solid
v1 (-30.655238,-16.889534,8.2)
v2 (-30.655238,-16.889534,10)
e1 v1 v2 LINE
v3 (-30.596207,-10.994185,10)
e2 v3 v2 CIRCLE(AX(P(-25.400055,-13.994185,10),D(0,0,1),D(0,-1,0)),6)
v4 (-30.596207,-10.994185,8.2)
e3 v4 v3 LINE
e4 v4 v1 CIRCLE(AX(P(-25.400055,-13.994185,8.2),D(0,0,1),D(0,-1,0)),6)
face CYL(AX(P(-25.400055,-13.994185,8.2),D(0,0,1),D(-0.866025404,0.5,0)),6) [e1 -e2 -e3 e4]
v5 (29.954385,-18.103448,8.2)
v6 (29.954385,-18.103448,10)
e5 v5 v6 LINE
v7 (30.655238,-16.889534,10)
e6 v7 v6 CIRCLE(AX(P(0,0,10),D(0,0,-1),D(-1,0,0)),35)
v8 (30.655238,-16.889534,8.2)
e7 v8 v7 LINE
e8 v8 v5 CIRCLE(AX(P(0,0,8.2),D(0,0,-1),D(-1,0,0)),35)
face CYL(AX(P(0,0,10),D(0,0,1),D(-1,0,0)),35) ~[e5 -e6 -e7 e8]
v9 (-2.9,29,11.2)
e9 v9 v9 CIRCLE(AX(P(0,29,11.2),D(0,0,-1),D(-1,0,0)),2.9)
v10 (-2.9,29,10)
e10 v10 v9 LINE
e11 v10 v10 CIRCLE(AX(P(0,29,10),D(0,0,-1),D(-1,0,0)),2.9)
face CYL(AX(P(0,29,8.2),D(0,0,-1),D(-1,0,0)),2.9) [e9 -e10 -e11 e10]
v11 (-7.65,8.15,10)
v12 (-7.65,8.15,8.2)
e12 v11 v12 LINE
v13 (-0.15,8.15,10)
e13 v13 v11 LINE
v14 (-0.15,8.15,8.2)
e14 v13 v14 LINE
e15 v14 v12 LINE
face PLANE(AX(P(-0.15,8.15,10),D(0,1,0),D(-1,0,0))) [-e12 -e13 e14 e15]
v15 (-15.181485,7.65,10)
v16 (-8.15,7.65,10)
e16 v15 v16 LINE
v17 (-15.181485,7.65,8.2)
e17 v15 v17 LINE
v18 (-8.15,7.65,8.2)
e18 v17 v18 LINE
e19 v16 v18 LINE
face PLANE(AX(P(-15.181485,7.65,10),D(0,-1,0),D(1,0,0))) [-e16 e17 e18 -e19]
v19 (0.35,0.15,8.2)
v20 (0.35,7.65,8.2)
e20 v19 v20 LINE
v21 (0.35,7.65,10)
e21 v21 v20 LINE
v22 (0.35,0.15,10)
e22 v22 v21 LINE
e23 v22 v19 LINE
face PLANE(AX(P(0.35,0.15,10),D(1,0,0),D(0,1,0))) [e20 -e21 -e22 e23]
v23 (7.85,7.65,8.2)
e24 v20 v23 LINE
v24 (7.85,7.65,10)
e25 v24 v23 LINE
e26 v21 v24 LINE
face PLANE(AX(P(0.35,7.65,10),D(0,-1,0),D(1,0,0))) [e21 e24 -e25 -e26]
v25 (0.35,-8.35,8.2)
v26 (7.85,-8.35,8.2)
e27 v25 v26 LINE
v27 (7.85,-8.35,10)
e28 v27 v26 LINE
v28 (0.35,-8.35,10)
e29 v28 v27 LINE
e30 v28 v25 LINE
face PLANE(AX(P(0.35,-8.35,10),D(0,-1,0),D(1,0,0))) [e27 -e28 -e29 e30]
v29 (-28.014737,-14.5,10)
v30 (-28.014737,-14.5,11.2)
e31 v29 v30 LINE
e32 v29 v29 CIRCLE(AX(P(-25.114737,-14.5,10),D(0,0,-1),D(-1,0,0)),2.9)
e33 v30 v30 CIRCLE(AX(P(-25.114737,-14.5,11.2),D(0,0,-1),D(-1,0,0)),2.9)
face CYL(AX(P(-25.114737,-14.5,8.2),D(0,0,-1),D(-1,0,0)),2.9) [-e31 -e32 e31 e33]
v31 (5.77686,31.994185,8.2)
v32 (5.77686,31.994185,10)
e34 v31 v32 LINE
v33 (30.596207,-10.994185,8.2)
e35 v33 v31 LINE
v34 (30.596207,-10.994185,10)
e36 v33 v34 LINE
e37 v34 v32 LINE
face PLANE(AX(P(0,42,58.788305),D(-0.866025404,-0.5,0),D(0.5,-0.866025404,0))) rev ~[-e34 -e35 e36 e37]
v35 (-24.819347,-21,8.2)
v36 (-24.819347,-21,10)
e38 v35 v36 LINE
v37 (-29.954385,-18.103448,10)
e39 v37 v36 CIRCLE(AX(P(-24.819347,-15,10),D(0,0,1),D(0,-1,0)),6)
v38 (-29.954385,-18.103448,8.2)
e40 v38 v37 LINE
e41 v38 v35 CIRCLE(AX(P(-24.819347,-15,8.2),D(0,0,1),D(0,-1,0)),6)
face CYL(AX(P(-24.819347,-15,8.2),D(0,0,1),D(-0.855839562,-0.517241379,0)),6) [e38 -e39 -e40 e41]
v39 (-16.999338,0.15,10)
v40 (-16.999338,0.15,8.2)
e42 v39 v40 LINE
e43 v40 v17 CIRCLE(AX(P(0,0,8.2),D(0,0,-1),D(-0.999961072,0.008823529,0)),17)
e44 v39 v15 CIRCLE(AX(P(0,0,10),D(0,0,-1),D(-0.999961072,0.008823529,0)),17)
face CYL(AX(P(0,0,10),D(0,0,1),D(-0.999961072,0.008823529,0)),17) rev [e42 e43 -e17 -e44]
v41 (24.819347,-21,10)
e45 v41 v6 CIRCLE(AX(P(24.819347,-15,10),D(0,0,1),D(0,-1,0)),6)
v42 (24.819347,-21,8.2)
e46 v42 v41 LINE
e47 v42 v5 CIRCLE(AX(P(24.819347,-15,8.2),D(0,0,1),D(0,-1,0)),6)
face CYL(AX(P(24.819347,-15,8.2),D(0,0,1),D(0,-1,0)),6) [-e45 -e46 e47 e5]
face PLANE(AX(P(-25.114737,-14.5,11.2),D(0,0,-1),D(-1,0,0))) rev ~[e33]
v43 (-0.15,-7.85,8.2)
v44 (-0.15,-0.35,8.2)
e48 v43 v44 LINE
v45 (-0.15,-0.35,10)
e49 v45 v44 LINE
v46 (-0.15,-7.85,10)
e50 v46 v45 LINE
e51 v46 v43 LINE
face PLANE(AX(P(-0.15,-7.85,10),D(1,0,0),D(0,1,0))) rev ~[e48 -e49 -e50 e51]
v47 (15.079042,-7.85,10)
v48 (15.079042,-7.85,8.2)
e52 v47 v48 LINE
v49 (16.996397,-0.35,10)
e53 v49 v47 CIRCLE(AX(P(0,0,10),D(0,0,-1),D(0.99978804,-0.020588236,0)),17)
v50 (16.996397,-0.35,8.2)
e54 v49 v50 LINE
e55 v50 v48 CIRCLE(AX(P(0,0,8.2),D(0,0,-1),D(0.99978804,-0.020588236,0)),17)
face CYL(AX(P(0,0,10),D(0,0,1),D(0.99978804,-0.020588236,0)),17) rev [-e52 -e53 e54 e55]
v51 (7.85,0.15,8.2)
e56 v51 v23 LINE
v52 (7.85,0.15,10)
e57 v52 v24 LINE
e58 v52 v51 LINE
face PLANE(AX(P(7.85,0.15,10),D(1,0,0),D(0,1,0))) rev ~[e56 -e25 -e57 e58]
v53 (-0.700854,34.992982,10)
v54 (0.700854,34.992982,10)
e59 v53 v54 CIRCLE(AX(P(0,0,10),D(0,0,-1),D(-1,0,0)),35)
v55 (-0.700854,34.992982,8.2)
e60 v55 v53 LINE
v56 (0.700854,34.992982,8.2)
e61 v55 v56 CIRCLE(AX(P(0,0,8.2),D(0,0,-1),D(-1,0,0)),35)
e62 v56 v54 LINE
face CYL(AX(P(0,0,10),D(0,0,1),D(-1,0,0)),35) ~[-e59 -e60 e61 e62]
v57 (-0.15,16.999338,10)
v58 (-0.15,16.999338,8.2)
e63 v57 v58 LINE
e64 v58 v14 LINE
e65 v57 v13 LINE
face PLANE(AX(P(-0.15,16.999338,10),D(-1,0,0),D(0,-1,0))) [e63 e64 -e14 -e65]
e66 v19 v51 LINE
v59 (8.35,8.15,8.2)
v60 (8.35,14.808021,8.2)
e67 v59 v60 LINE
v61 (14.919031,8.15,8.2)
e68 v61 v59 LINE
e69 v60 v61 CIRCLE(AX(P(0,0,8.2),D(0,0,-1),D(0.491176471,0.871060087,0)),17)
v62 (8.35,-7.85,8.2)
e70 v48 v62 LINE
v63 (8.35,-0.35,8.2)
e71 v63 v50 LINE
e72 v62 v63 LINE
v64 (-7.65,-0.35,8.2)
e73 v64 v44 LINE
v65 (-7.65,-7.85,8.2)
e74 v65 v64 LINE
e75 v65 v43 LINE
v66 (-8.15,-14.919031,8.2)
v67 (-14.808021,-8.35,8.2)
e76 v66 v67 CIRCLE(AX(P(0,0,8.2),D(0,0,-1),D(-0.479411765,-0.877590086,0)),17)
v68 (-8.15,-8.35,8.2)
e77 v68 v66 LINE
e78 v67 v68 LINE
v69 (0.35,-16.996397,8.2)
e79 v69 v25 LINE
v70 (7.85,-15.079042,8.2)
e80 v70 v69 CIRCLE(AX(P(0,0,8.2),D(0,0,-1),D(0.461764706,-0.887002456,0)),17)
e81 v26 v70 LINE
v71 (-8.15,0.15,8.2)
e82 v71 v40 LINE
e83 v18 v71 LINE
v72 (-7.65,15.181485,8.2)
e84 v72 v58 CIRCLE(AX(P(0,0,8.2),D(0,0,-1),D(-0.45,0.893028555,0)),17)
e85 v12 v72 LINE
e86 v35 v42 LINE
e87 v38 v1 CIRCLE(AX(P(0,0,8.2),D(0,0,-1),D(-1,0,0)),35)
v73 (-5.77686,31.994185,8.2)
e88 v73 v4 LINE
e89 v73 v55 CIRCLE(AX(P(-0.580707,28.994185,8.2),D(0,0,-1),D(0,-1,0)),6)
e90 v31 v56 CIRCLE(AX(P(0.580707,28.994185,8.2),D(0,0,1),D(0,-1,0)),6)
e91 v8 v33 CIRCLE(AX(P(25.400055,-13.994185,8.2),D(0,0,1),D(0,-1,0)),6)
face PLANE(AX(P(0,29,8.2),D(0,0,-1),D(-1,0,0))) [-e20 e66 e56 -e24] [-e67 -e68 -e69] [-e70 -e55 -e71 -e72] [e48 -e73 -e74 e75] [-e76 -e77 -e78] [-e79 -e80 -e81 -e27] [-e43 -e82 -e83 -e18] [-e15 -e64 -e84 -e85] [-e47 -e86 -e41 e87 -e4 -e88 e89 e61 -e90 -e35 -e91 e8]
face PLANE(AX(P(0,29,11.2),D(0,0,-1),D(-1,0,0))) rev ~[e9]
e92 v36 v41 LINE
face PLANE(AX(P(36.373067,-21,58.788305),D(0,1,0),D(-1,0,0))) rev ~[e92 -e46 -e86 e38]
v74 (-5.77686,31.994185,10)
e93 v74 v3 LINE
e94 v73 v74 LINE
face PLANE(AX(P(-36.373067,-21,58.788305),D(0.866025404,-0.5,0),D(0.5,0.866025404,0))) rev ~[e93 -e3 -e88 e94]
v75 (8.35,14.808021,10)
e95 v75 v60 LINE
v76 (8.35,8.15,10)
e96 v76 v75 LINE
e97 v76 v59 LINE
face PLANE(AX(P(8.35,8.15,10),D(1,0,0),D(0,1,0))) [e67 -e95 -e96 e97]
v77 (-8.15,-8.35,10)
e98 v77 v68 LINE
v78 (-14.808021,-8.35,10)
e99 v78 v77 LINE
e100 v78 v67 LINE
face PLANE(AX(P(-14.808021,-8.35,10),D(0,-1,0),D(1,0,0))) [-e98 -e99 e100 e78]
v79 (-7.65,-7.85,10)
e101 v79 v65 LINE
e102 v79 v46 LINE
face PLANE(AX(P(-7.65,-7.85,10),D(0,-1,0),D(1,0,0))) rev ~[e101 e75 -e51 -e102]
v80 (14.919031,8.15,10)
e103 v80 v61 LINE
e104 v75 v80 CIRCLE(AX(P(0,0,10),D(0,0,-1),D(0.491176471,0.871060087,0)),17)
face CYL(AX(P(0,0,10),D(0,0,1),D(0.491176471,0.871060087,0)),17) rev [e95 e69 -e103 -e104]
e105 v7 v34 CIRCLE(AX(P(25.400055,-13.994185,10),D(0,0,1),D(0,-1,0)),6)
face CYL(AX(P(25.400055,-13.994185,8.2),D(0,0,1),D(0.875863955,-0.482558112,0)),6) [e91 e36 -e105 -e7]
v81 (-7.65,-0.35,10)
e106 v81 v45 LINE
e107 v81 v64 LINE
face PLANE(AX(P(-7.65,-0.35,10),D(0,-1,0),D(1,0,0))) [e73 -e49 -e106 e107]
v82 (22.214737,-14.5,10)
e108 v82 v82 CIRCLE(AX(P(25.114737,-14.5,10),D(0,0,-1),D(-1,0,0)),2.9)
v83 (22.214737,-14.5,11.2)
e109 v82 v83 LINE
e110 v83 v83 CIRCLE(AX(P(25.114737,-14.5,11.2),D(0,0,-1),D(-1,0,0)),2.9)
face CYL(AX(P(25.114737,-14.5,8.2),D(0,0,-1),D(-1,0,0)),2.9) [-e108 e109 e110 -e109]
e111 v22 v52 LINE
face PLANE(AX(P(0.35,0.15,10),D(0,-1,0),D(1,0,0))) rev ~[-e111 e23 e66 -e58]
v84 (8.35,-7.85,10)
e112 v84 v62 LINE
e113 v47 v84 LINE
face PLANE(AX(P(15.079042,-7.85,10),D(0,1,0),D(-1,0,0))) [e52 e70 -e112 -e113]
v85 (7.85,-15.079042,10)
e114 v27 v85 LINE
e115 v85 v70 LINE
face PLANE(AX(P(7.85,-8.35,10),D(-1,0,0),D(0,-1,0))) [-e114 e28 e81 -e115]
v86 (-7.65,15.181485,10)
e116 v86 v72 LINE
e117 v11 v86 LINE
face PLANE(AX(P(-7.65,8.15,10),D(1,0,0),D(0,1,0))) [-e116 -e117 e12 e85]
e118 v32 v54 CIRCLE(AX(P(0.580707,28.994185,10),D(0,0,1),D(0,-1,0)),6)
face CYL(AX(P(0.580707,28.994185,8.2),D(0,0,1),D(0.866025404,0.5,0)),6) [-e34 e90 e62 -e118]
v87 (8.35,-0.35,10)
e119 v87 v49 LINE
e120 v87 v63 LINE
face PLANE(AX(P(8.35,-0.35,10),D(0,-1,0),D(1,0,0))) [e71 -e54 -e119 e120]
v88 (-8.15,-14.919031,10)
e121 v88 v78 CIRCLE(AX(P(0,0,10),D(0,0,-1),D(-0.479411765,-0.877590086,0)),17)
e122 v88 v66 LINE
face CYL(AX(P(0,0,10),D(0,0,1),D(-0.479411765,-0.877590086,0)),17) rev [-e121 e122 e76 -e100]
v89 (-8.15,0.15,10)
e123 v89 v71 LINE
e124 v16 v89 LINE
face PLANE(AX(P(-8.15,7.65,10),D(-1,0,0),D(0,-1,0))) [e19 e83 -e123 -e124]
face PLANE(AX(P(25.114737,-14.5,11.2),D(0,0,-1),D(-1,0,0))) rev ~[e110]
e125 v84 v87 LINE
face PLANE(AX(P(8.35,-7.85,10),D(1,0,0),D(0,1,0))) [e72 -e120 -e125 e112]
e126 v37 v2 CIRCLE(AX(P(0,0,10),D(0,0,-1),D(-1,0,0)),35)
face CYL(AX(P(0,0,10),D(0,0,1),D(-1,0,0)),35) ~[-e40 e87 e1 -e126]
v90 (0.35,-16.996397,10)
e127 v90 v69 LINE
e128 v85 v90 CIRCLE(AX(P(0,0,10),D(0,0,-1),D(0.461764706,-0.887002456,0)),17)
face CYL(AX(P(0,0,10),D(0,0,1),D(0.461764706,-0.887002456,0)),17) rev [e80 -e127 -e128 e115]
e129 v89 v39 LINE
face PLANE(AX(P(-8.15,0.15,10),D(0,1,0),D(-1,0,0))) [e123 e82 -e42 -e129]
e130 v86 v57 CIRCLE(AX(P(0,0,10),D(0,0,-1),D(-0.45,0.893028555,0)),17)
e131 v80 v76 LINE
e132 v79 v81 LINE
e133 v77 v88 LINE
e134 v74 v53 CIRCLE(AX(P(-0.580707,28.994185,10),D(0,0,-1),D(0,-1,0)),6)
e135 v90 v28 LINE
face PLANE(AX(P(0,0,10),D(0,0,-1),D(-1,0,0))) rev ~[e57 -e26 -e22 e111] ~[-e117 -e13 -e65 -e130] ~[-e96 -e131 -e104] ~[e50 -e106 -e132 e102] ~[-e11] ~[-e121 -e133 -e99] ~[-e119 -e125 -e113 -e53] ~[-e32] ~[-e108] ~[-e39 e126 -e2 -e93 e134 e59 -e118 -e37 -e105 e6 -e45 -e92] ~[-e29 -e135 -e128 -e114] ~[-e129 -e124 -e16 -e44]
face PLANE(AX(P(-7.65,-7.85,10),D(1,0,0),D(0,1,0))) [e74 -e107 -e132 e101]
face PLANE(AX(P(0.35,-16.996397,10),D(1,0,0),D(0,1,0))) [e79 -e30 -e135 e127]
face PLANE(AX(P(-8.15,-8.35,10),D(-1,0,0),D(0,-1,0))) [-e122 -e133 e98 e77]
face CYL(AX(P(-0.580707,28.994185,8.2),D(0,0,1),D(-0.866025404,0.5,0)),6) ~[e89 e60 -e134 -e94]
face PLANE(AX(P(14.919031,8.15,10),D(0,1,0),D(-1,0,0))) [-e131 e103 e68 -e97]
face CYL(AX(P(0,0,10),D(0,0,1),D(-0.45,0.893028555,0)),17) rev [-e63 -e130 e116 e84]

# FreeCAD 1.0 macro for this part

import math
import FreeCAD as App
import Part
import Sketcher
Q = App.Units.Quantity


def edges_at(feature, points):
    """Names of the edges that pass closest to the given points."""
    edges = feature.Shape.Edges
    near = lambda p: min(range(len(edges)), key=lambda i: edges[i].distToShape(Part.Vertex(*p))[0])
    return sorted({f"Edge{near(p) + 1}" for p in points})


def add_polygon(sketch, points):
    """Adds a closed chain of lines whose ends are joined by coincident constraints."""
    first, n = sketch.GeometryCount, len(points)
    for a, b in zip(points, points[1:] + points[:1]):
        sketch.addGeometry(Part.LineSegment(App.Vector(*a, 0), App.Vector(*b, 0)), False)
    for i in range(n):
        sketch.addConstraint(Sketcher.Constraint("Coincident", first + i, 2, first + (i + 1) % n, 1))

doc = App.newDocument("Part")
body = doc.addObject("PartDesign::Body", "Body")

# Sketch on XY plane
sketch1 = body.newObject("Sketcher::SketchObject", "Sketch")
sketch1.AttachmentSupport = (doc.getObject("XY_Plane"), [""])
sketch1.MapMode = "FlatFace"
sketch1.AttachmentOffset = App.Placement(App.Vector(0, 0, 10), App.Rotation())
sketch1.addGeometry(Part.Circle(App.Vector(0, 0, 0), App.Vector(0, 0, 1), 18), False)  # 0
sketch1.addGeometry(Part.LineSegment(App.Vector(-15, -8, 0), App.Vector(-8, -8, 0)), False)  # 1
sketch1.addGeometry(Part.LineSegment(App.Vector(-8, -8, 0), App.Vector(-8, -15, 0)), False)  # 2
sketch1.addGeometry(Part.ArcOfCircle(Part.Circle(App.Vector(0, 0, 0), App.Vector(0, 0, 1), 17), math.radians(-151), math.radians(-119)), False)  # 3
sketch1.addGeometry(Part.LineSegment(App.Vector(-8, -8, 0), App.Vector(0, -8, 0)), False)  # 4
sketch1.addGeometry(Part.LineSegment(App.Vector(0, -8, 0), App.Vector(0, -17, 0)), False)  # 5
sketch1.addGeometry(Part.ArcOfCircle(Part.Circle(App.Vector(0, 0, 0), App.Vector(0, 0, 1), 17), math.radians(-117), math.radians(-91)), False)  # 6
sketch1.addGeometry(Part.LineSegment(App.Vector(-8, -15, 0), App.Vector(-8, -8, 0)), False)  # 7
sketch1.addGeometry(Part.LineSegment(App.Vector(-8, 0, 0), App.Vector(-8, -8, 0)), False)  # 8
sketch1.addGeometry(Part.LineSegment(App.Vector(-8, -8, 0), App.Vector(-15, -8, 0)), False)  # 9
sketch1.addGeometry(Part.ArcOfCircle(Part.Circle(App.Vector(0, 0, 0), App.Vector(0, 0, 1), 17), math.radians(-179), math.radians(-152)), False)  # 10
sketch1.addGeometry(Part.LineSegment(App.Vector(-17, 0, 0), App.Vector(-8, 0, 0)), False)  # 11
add_polygon(sketch1, [(0, -8), (-8, -8), (-8, 0), (0, 0)])  # lines 12-15
sketch1.addGeometry(Part.LineSegment(App.Vector(0, -8, 0), App.Vector(8, -8, 0)), False)  # 16
sketch1.addGeometry(Part.LineSegment(App.Vector(8, -8, 0), App.Vector(8, -15, 0)), False)  # 17
sketch1.addGeometry(Part.ArcOfCircle(Part.Circle(App.Vector(0, 0, 0), App.Vector(0, 0, 1), 17), math.radians(-89), math.radians(-62)), False)  # 18
sketch1.addGeometry(Part.LineSegment(App.Vector(0, -17, 0), App.Vector(0, -8, 0)), False)  # 19
sketch1.addGeometry(Part.LineSegment(App.Vector(8, -15, 0), App.Vector(8, -8, 0)), False)  # 20
sketch1.addGeometry(Part.LineSegment(App.Vector(8, -8, 0), App.Vector(15, -8, 0)), False)  # 21
sketch1.addGeometry(Part.ArcOfCircle(Part.Circle(App.Vector(0, 0, 0), App.Vector(0, 0, 1), 17), math.radians(-61), math.radians(-29)), False)  # 22
add_polygon(sketch1, [(8, -8), (0, -8), (0, 0), (8, 0)])  # lines 23-26
sketch1.addGeometry(Part.LineSegment(App.Vector(8, -8, 0), App.Vector(8, 0, 0)), False)  # 27
sketch1.addGeometry(Part.LineSegment(App.Vector(8, 0, 0), App.Vector(17, 0, 0)), False)  # 28
sketch1.addGeometry(Part.ArcOfCircle(Part.Circle(App.Vector(0, 0, 0), App.Vector(0, 0, 1), 17), math.radians(-28), math.radians(-1)), False)  # 29
sketch1.addGeometry(Part.LineSegment(App.Vector(15, -8, 0), App.Vector(8, -8, 0)), False)  # 30
sketch1.addGeometry(Part.LineSegment(App.Vector(-8, 8, 0), App.Vector(-8, 0, 0)), False)  # 31
sketch1.addGeometry(Part.LineSegment(App.Vector(-8, 0, 0), App.Vector(-17, 0, 0)), False)  # 32
sketch1.addGeometry(Part.ArcOfCircle(Part.Circle(App.Vector(0, 0, 0), App.Vector(0, 0, 1), 17), math.radians(153), math.radians(179)), False)  # 33
sketch1.addGeometry(Part.LineSegment(App.Vector(-15, 8, 0), App.Vector(-8, 8, 0)), False)  # 34
add_polygon(sketch1, [(0, 0), (-8, 0), (-8, 8), (0, 8)])  # lines 35-38
sketch1.addGeometry(Part.LineSegment(App.Vector(-8, 15, 0), App.Vector(-8, 8, 0)), False)  # 39
sketch1.addGeometry(Part.LineSegment(App.Vector(-8, 8, 0), App.Vector(-15, 8, 0)), False)  # 40
sketch1.addGeometry(Part.ArcOfCircle(Part.Circle(App.Vector(0, 0, 0), App.Vector(0, 0, 1), 17), math.radians(119), math.radians(151)), False)  # 41
sketch1.addGeometry(Part.LineSegment(App.Vector(0, 8, 0), App.Vector(-8, 8, 0)), False)  # 42
sketch1.addGeometry(Part.LineSegment(App.Vector(-8, 8, 0), App.Vector(-8, 15, 0)), False)  # 43
sketch1.addGeometry(Part.ArcOfCircle(Part.Circle(App.Vector(0, 0, 0), App.Vector(0, 0, 1), 17), math.radians(91), math.radians(117)), False)  # 44
sketch1.addGeometry(Part.LineSegment(App.Vector(0, 17, 0), App.Vector(0, 8, 0)), False)  # 45
add_polygon(sketch1, [(8, 0), (0, 0), (0, 8), (8, 8)])  # lines 46-49
sketch1.addGeometry(Part.LineSegment(App.Vector(8, 0, 0), App.Vector(8, 8, 0)), False)  # 50
sketch1.addGeometry(Part.LineSegment(App.Vector(8, 8, 0), App.Vector(15, 8, 0)), False)  # 51
sketch1.addGeometry(Part.ArcOfCircle(Part.Circle(App.Vector(0, 0, 0), App.Vector(0, 0, 1), 17), math.radians(1), math.radians(27)), False)  # 52
sketch1.addGeometry(Part.LineSegment(App.Vector(17, 0, 0), App.Vector(8, 0, 0)), False)  # 53
sketch1.addGeometry(Part.LineSegment(App.Vector(8, 8, 0), App.Vector(0, 8, 0)), False)  # 54
sketch1.addGeometry(Part.LineSegment(App.Vector(0, 8, 0), App.Vector(0, 17, 0)), False)  # 55
sketch1.addGeometry(Part.ArcOfCircle(Part.Circle(App.Vector(0, 0, 0), App.Vector(0, 0, 1), 17), math.radians(62), math.radians(89)), False)  # 56
sketch1.addGeometry(Part.LineSegment(App.Vector(8, 15, 0), App.Vector(8, 8, 0)), False)  # 57
sketch1.addGeometry(Part.LineSegment(App.Vector(15, 8, 0), App.Vector(8, 8, 0)), False)  # 58
sketch1.addGeometry(Part.LineSegment(App.Vector(8, 8, 0), App.Vector(8, 15, 0)), False)  # 59
sketch1.addGeometry(Part.ArcOfCircle(Part.Circle(App.Vector(0, 0, 0), App.Vector(0, 0, 1), 17), math.radians(29), math.radians(61)), False)  # 60
sketch1.addConstraint([
    Sketcher.Constraint("Coincident", 1, 2, 2, 1),
    Sketcher.Constraint("Coincident", 2, 2, 3, 2),
    Sketcher.Constraint("Coincident", 3, 1, 1, 1),
    Sketcher.Constraint("Coincident", 4, 2, 5, 1),
    Sketcher.Constraint("Coincident", 5, 2, 6, 2),
    Sketcher.Constraint("Coincident", 6, 1, 7, 1),
    Sketcher.Constraint("Coincident", 7, 2, 4, 1),
    Sketcher.Constraint("Coincident", 8, 2, 9, 1),
    Sketcher.Constraint("Coincident", 9, 2, 10, 2),
    Sketcher.Constraint("Coincident", 10, 1, 11, 1),
    Sketcher.Constraint("Coincident", 11, 2, 8, 1),
    Sketcher.Constraint("Coincident", 16, 2, 17, 1),
    Sketcher.Constraint("Coincident", 17, 2, 18, 2),
    Sketcher.Constraint("Coincident", 18, 1, 19, 1),
    Sketcher.Constraint("Coincident", 19, 2, 16, 1),
    Sketcher.Constraint("Coincident", 20, 2, 21, 1),
    Sketcher.Constraint("Coincident", 21, 2, 22, 2),
    Sketcher.Constraint("Coincident", 22, 1, 20, 1),
    Sketcher.Constraint("Coincident", 27, 2, 28, 1),
    Sketcher.Constraint("Coincident", 28, 2, 29, 2),
    Sketcher.Constraint("Coincident", 29, 1, 30, 1),
    Sketcher.Constraint("Coincident", 30, 2, 27, 1),
    Sketcher.Constraint("Coincident", 31, 2, 32, 1),
    Sketcher.Constraint("Coincident", 32, 2, 33, 2),
    Sketcher.Constraint("Coincident", 33, 1, 34, 1),
    Sketcher.Constraint("Coincident", 34, 2, 31, 1),
    Sketcher.Constraint("Coincident", 39, 2, 40, 1),
    Sketcher.Constraint("Coincident", 40, 2, 41, 2),
    Sketcher.Constraint("Coincident", 41, 1, 39, 1),
    Sketcher.Constraint("Coincident", 42, 2, 43, 1),
    Sketcher.Constraint("Coincident", 43, 2, 44, 2),
    Sketcher.Constraint("Coincident", 44, 1, 45, 1),
    Sketcher.Constraint("Coincident", 45, 2, 42, 1),
    Sketcher.Constraint("Coincident", 50, 2, 51, 1),
    Sketcher.Constraint("Coincident", 51, 2, 52, 2),
    Sketcher.Constraint("Coincident", 52, 1, 53, 1),
    Sketcher.Constraint("Coincident", 53, 2, 50, 1),
    Sketcher.Constraint("Coincident", 54, 2, 55, 1),
    Sketcher.Constraint("Coincident", 55, 2, 56, 2),
    Sketcher.Constraint("Coincident", 56, 1, 57, 1),
    Sketcher.Constraint("Coincident", 57, 2, 54, 1),
    Sketcher.Constraint("Coincident", 58, 2, 59, 1),
    Sketcher.Constraint("Coincident", 59, 2, 60, 2),
    Sketcher.Constraint("Coincident", 60, 1, 58, 1),
    Sketcher.Constraint("Horizontal", 1),
    Sketcher.Constraint("Vertical", 2),
    Sketcher.Constraint("Horizontal", 4),
    Sketcher.Constraint("Vertical", 5),
    Sketcher.Constraint("Vertical", 7),
    Sketcher.Constraint("Vertical", 8),
    Sketcher.Constraint("Horizontal", 9),
    Sketcher.Constraint("Horizontal", 11),
    Sketcher.Constraint("Horizontal", 12),
    Sketcher.Constraint("Vertical", 13),
    Sketcher.Constraint("Horizontal", 14),
    Sketcher.Constraint("Vertical", 15),
    Sketcher.Constraint("Horizontal", 16),
    Sketcher.Constraint("Vertical", 17),
    Sketcher.Constraint("Vertical", 19),
    Sketcher.Constraint("Vertical", 20),
    Sketcher.Constraint("Horizontal", 21),
    Sketcher.Constraint("Horizontal", 23),
    Sketcher.Constraint("Vertical", 24),
    Sketcher.Constraint("Horizontal", 25),
    Sketcher.Constraint("Vertical", 26),
    Sketcher.Constraint("Vertical", 27),
    Sketcher.Constraint("Horizontal", 28),
    Sketcher.Constraint("Horizontal", 30),
    Sketcher.Constraint("Vertical", 31),
    Sketcher.Constraint("Horizontal", 32),
    Sketcher.Constraint("Horizontal", 34),
    Sketcher.Constraint("Horizontal", 35),
    Sketcher.Constraint("Vertical", 36),
    Sketcher.Constraint("Horizontal", 37),
    Sketcher.Constraint("Vertical", 38),
    Sketcher.Constraint("Vertical", 39),
    Sketcher.Constraint("Horizontal", 40),
    Sketcher.Constraint("Horizontal", 42),
    Sketcher.Constraint("Vertical", 43),
    Sketcher.Constraint("Vertical", 45),
    Sketcher.Constraint("Horizontal", 46),
    Sketcher.Constraint("Vertical", 47),
    Sketcher.Constraint("Horizontal", 48),
    Sketcher.Constraint("Vertical", 49),
    Sketcher.Constraint("Vertical", 50),
    Sketcher.Constraint("Horizontal", 51),
    Sketcher.Constraint("Horizontal", 53),
    Sketcher.Constraint("Horizontal", 54),
    Sketcher.Constraint("Vertical", 55),
    Sketcher.Constraint("Vertical", 57),
    Sketcher.Constraint("Horizontal", 58),
    Sketcher.Constraint("Vertical", 59),
    Sketcher.Constraint("Coincident", 0, 3, -1, 1),
    Sketcher.Constraint("Coincident", 3, 3, -1, 1),
    Sketcher.Constraint("Coincident", 6, 3, -1, 1),
    Sketcher.Constraint("Coincident", 10, 3, -1, 1),
    Sketcher.Constraint("Coincident", 18, 3, -1, 1),
    Sketcher.Constraint("Coincident", 22, 3, -1, 1),
    Sketcher.Constraint("Coincident", 29, 3, -1, 1),
    Sketcher.Constraint("Coincident", 33, 3, -1, 1),
    Sketcher.Constraint("Coincident", 41, 3, -1, 1),
    Sketcher.Constraint("Coincident", 44, 3, -1, 1),
    Sketcher.Constraint("Coincident", 52, 3, -1, 1),
    Sketcher.Constraint("Coincident", 56, 3, -1, 1),
    Sketcher.Constraint("Coincident", 60, 3, -1, 1),
    Sketcher.Constraint("Equal", 3, 6),
    Sketcher.Constraint("Equal", 6, 10),
    Sketcher.Constraint("Equal", 10, 18),
    Sketcher.Constraint("Equal", 18, 22),
    Sketcher.Constraint("Equal", 22, 29),
    Sketcher.Constraint("Equal", 29, 33),
    Sketcher.Constraint("Equal", 33, 41),
    Sketcher.Constraint("Equal", 41, 44),
    Sketcher.Constraint("Equal", 44, 52),
    Sketcher.Constraint("Equal", 52, 56),
    Sketcher.Constraint("Equal", 56, 60),
    Sketcher.Constraint("Horizontal", 3, 1, 4, 2),
    Sketcher.Constraint("Horizontal", 9, 2, 12, 2),
    Sketcher.Constraint("Horizontal", 11, 2, 13, 2),
    Sketcher.Constraint("Horizontal", 7, 2, 16, 2),
    Sketcher.Constraint("Horizontal", 19, 2, 20, 2),
    Sketcher.Constraint("Horizontal", 15, 2, 23, 2),
    Sketcher.Constraint("Horizontal", 14, 2, 24, 2),
    Sketcher.Constraint("Horizontal", 25, 2, 27, 2),
    Sketcher.Constraint("Horizontal", 26, 2, 29, 1),
    Sketcher.Constraint("Horizontal", 32, 2, 35, 2),
    Sketcher.Constraint("Horizontal", 34, 2, 36, 2),
    Sketcher.Constraint("Horizontal", 40, 2, 42, 2),
    Sketcher.Constraint("Horizontal", 38, 2, 46, 2),
    Sketcher.Constraint("Horizontal", 37, 2, 47, 2),
    Sketcher.Constraint("Horizontal", 48, 2, 50, 2),
    Sketcher.Constraint("Horizontal", 49, 2, 52, 1),
    Sketcher.Constraint("Horizontal", 45, 2, 54, 2),
    Sketcher.Constraint("Horizontal", 57, 2, 58, 2),
    Sketcher.Constraint("Vertical", 2, 2, 8, 2),
    Sketcher.Constraint("Vertical", 7, 2, 12, 2),
    Sketcher.Constraint("Vertical", 5, 2, 14, 2),
    Sketcher.Constraint("Vertical", 19, 2, 23, 2),
    Sketcher.Constraint("Vertical", 17, 2, 25, 2),
    Sketcher.Constraint("Vertical", 22, 1, 27, 2),
    Sketcher.Constraint("Vertical", 11, 2, 31, 2),
    Sketcher.Constraint("Vertical", 13, 2, 35, 2),
    Sketcher.Constraint("Vertical", 15, 2, 37, 2),
    Sketcher.Constraint("Vertical", 34, 2, 39, 2),
    Sketcher.Constraint("Vertical", 36, 2, 42, 2),
    Sketcher.Constraint("Vertical", 38, 2, 44, 1),
    Sketcher.Constraint("Vertical", 24, 2, 46, 2),
    Sketcher.Constraint("Vertical", 26, 2, 48, 2),
    Sketcher.Constraint("Vertical", 30, 2, 50, 2),
    Sketcher.Constraint("Vertical", 47, 2, 54, 2),
    Sketcher.Constraint("Vertical", 49, 2, 56, 1),
    Sketcher.Constraint("Vertical", 53, 2, 58, 2),
    Sketcher.Constraint("Equal", 14, 16),
    Sketcher.Constraint("Equal", 58, 2),
    Sketcher.Constraint("Equal", 53, 5),
    Sketcher.Constraint("Equal", 51, 7),
    Sketcher.Constraint("Equal", 54, 8),
    Sketcher.Constraint("Equal", 30, 17),
    Sketcher.Constraint("Equal", 27, 31),
    Sketcher.Constraint("Diameter", 0, Q("36 mm")),
    Sketcher.Constraint("Radius", 3, Q("17 mm")),
    Sketcher.Constraint("DistanceX", 4, 1, 4, 2, Q("7.5 mm")),
    Sketcher.Constraint("DistanceX", 1, 2, -1, 1, Q("8.15 mm")),
    Sketcher.Constraint("DistanceY", 1, 2, -1, 1, Q("8.35 mm")),
    Sketcher.Constraint("DistanceX", 4, 2, -1, 1, Q("0.15 mm")),
    Sketcher.Constraint("DistanceY", 8, 2, -1, 1, Q("7.85 mm")),
])
pad1 = body.newObject("PartDesign::Pad", "Pad")
pad1.Profile = sketch1
pad1.Length = 1.8
pad1.Reversed = True

# Sketch on XY plane
sketch2 = body.newObject("Sketcher::SketchObject", "Sketch001")
sketch2.AttachmentSupport = (doc.getObject("XY_Plane"), [""])
sketch2.MapMode = "FlatFace"
sketch2.AttachmentOffset = App.Placement(App.Vector(0, 0, 10), App.Rotation())
sketch2.addGeometry(Part.ArcOfCircle(Part.Circle(App.Vector(0, 0, 0), App.Vector(0, 0, 1), 17), math.radians(62), math.radians(89)), False)  # 0
sketch2.addGeometry(Part.LineSegment(App.Vector(0, 17, 0), App.Vector(0, 8, 0)), False)  # 1
sketch2.addGeometry(Part.LineSegment(App.Vector(0, 8, 0), App.Vector(8, 8, 0)), False)  # 2
sketch2.addGeometry(Part.LineSegment(App.Vector(8, 8, 0), App.Vector(8, 15, 0)), False)  # 3
sketch2.addGeometry(Part.LineSegment(App.Vector(8, 0, 0), App.Vector(17, 0, 0)), False)  # 4
sketch2.addGeometry(Part.ArcOfCircle(Part.Circle(App.Vector(0, 0, 0), App.Vector(0, 0, 1), 17), math.radians(1), math.radians(28)), False)  # 5
sketch2.addGeometry(Part.LineSegment(App.Vector(15, 8, 0), App.Vector(8, 8, 0)), False)  # 6
sketch2.addGeometry(Part.LineSegment(App.Vector(8, 8, 0), App.Vector(8, 0, 0)), False)  # 7
add_polygon(sketch2, [(-8, 8), (-8, 0), (0, 0), (0, 8)])  # lines 8-11
add_polygon(sketch2, [(0, 0), (0, -8), (8, -8), (8, 0)])  # lines 12-15
sketch2.addGeometry(Part.LineSegment(App.Vector(8, -8, 0), App.Vector(8, -15, 0)), False)  # 16
sketch2.addGeometry(Part.ArcOfCircle(Part.Circle(App.Vector(0, 0, 0), App.Vector(0, 0, 1), 17), math.radians(-61), math.radians(-29)), False)  # 17
sketch2.addGeometry(Part.LineSegment(App.Vector(15, -8, 0), App.Vector(8, -8, 0)), False)  # 18
sketch2.addGeometry(Part.LineSegment(App.Vector(-8, -8, 0), App.Vector(-8, -15, 0)), False)  # 19
sketch2.addGeometry(Part.ArcOfCircle(Part.Circle(App.Vector(0, 0, 0), App.Vector(0, 0, 1), 17), math.radians(-118), math.radians(-91)), False)  # 20
sketch2.addGeometry(Part.LineSegment(App.Vector(0, -17, 0), App.Vector(0, -8, 0)), False)  # 21
sketch2.addGeometry(Part.LineSegment(App.Vector(0, -8, 0), App.Vector(-8, -8, 0)), False)  # 22
sketch2.addGeometry(Part.ArcOfCircle(Part.Circle(App.Vector(0, 0, 0), App.Vector(0, 0, 1), 17), math.radians(-179), math.radians(-152)), False)  # 23
sketch2.addGeometry(Part.LineSegment(App.Vector(-15, -8, 0), App.Vector(-8, -8, 0)), False)  # 24
sketch2.addGeometry(Part.LineSegment(App.Vector(-8, -8, 0), App.Vector(-8, 0, 0)), False)  # 25
sketch2.addGeometry(Part.LineSegment(App.Vector(-8, 0, 0), App.Vector(-17, 0, 0)), False)  # 26
sketch2.addGeometry(Part.ArcOfCircle(Part.Circle(App.Vector(0, 0, 0), App.Vector(0, 0, 1), 17), math.radians(119), math.radians(151)), False)  # 27
sketch2.addGeometry(Part.LineSegment(App.Vector(-15, 8, 0), App.Vector(-8, 8, 0)), False)  # 28
sketch2.addGeometry(Part.LineSegment(App.Vector(-8, 8, 0), App.Vector(-8, 15, 0)), False)  # 29
sketch2.addConstraint([
    Sketcher.Constraint("Coincident", 0, 2, 1, 1),
    Sketcher.Constraint("Coincident", 1, 2, 2, 1),
    Sketcher.Constraint("Coincident", 2, 2, 3, 1),
    Sketcher.Constraint("Coincident", 3, 2, 0, 1),
    Sketcher.Constraint("Coincident", 4, 2, 5, 1),
    Sketcher.Constraint("Coincident", 5, 2, 6, 1),
    Sketcher.Constraint("Coincident", 6, 2, 7, 1),
    Sketcher.Constraint("Coincident", 7, 2, 4, 1),
    Sketcher.Constraint("Coincident", 16, 2, 17, 1),
    Sketcher.Constraint("Coincident", 17, 2, 18, 1),
    Sketcher.Constraint("Coincident", 18, 2, 16, 1),
    Sketcher.Constraint("Coincident", 19, 2, 20, 1),
    Sketcher.Constraint("Coincident", 20, 2, 21, 1),
    Sketcher.Constraint("Coincident", 21, 2, 22, 1),
    Sketcher.Constraint("Coincident", 22, 2, 19, 1),
    Sketcher.Constraint("Coincident", 23, 2, 24, 1),
    Sketcher.Constraint("Coincident", 24, 2, 25, 1),
    Sketcher.Constraint("Coincident", 25, 2, 26, 1),
    Sketcher.Constraint("Coincident", 26, 2, 23, 1),
    Sketcher.Constraint("Coincident", 27, 2, 28, 1),
    Sketcher.Constraint("Coincident", 28, 2, 29, 1),
    Sketcher.Constraint("Coincident", 29, 2, 27, 1),
    Sketcher.Constraint("Vertical", 1),
    Sketcher.Constraint("Horizontal", 2),
    Sketcher.Constraint("Vertical", 3),
    Sketcher.Constraint("Horizontal", 4),
    Sketcher.Constraint("Horizontal", 6),
    Sketcher.Constraint("Vertical", 7),
    Sketcher.Constraint("Vertical", 8),
    Sketcher.Constraint("Horizontal", 9),
    Sketcher.Constraint("Vertical", 10),
    Sketcher.Constraint("Horizontal", 11),
    Sketcher.Constraint("Vertical", 12),
    Sketcher.Constraint("Horizontal", 13),
    Sketcher.Constraint("Vertical", 14),
    Sketcher.Constraint("Horizontal", 15),
    Sketcher.Constraint("Vertical", 16),
    Sketcher.Constraint("Horizontal", 18),
    Sketcher.Constraint("Vertical", 19),
    Sketcher.Constraint("Vertical", 21),
    Sketcher.Constraint("Horizontal", 22),
    Sketcher.Constraint("Horizontal", 24),
    Sketcher.Constraint("Vertical", 25),
    Sketcher.Constraint("Horizontal", 26),
    Sketcher.Constraint("Horizontal", 28),
    Sketcher.Constraint("Vertical", 29),
    Sketcher.Constraint("Coincident", 0, 3, -1, 1),
    Sketcher.Constraint("Coincident", 5, 3, -1, 1),
    Sketcher.Constraint("Coincident", 17, 3, -1, 1),
    Sketcher.Constraint("Coincident", 20, 3, -1, 1),
    Sketcher.Constraint("Coincident", 23, 3, -1, 1),
    Sketcher.Constraint("Coincident", 27, 3, -1, 1),
    Sketcher.Constraint("Equal", 0, 5),
    Sketcher.Constraint("Equal", 5, 17),
    Sketcher.Constraint("Equal", 17, 20),
    Sketcher.Constraint("Equal", 20, 23),
    Sketcher.Constraint("Equal", 23, 27),
    Sketcher.Constraint("Symmetric", 10, 2, 12, 2, -1, 1),
    Sketcher.Constraint("Symmetric", 8, 2, 14, 2, -1, 1),
    Sketcher.Constraint("Symmetric", 1, 2, 21, 2, -1, 1),
    Sketcher.Constraint("Symmetric", 6, 2, 24, 2, -1, 1),
    Sketcher.Constraint("Symmetric", 18, 2, 28, 2, -1, 1),
    Sketcher.Constraint("Horizontal", 7, 2, 8, 2),
    Sketcher.Constraint("Horizontal", 6, 2, 10, 2),
    Sketcher.Constraint("Horizontal", 18, 2, 21, 2),
    Sketcher.Constraint("Horizontal", 15, 2, 25, 2),
    Sketcher.Constraint("Vertical", 1, 2, 12, 2),
    Sketcher.Constraint("Vertical", 3, 2, 13, 2),
    Sketcher.Constraint("Vertical", 7, 2, 16, 2),
    Sketcher.Constraint("Vertical", 11, 2, 19, 2),
    Sketcher.Constraint("Equal", 26, 1),
    Sketcher.Constraint("Equal", 24, 3),
    Sketcher.Constraint("Equal", 22, 7),
    Sketcher.Constraint("Radius", 0, Q("17 mm")),
    Sketcher.Constraint("DistanceX", 2, 1, 2, 2, Q("7.7 mm")),
    Sketcher.Constraint("DistanceY", 4, 2, 2, 2, Q("8 mm")),
    Sketcher.Constraint("DistanceX", 11, 2, 1, 2, Q("8 mm")),
])
pad2 = body.newObject("PartDesign::Pad", "Pad001")
pad2.Profile = sketch2
pad2.Length = 1.8
pad2.Reversed = True

# Sketch on XY plane
sketch3 = body.newObject("Sketcher::SketchObject", "Sketch002")
sketch3.AttachmentSupport = (doc.getObject("XY_Plane"), [""])
sketch3.MapMode = "FlatFace"
sketch3.AttachmentOffset = App.Placement(App.Vector(0, 0, 10), App.Rotation())
sketch3.addGeometry([
    Part.Circle(App.Vector(0, 0, 0), App.Vector(0, 0, 1), 35),
    Part.Circle(App.Vector(0, 0, 0), App.Vector(0, 0, 1), 18),
], False)
sketch3.addConstraint([
    Sketcher.Constraint("Coincident", 0, 3, -1, 1),
    Sketcher.Constraint("Coincident", 1, 3, -1, 1),
    Sketcher.Constraint("Diameter", 0, Q("70 mm")),
    Sketcher.Constraint("Diameter", 1, Q("36 mm")),
])
pad3 = body.newObject("PartDesign::Pad", "Pad002")
pad3.Profile = sketch3
pad3.Length = 1.8
pad3.Reversed = True

# Sketch on XY plane
sketch4 = body.newObject("Sketcher::SketchObject", "Sketch003")
sketch4.AttachmentSupport = (doc.getObject("XY_Plane"), [""])
sketch4.MapMode = "FlatFace"
sketch4.AttachmentOffset = App.Placement(App.Vector(0, 0, 8.2), App.Rotation())
sketch4.addGeometry([
    Part.Circle(App.Vector(0, 29, 0), App.Vector(0, 0, 1), 2.9),
    Part.Circle(App.Vector(-25.1, -14.5, 0), App.Vector(0, 0, 1), 2.9),
    Part.Circle(App.Vector(25.1, -14.5, 0), App.Vector(0, 0, 1), 2.9),
], False)
sketch4.addConstraint([
    Sketcher.Constraint("Equal", 0, 1),
    Sketcher.Constraint("Equal", 1, 2),
    Sketcher.Constraint("Symmetric", 1, 3, 2, 3, -2),
    Sketcher.Constraint("PointOnObject", 0, 3, -2),
    Sketcher.Constraint("Diameter", 0, Q("5.8 mm")),
    Sketcher.Constraint("DistanceY", -1, 1, 0, 3, Q("29 mm")),
    Sketcher.Constraint("DistanceY", 1, 3, -1, 1, Q("14.5 mm")),
    Sketcher.Constraint("DistanceX", 1, 3, -1, 1, Q("25.114737 mm")),
])
pad4 = body.newObject("PartDesign::Pad", "Pad003")
pad4.Profile = sketch4
pad4.Length = 3

# Sketch on XY plane
sketch5 = body.newObject("Sketcher::SketchObject", "Sketch004")
sketch5.AttachmentSupport = (doc.getObject("XY_Plane"), [""])
sketch5.MapMode = "FlatFace"
sketch5.AttachmentOffset = App.Placement(App.Vector(0, 0, 8.2), App.Rotation())
sketch5.addGeometry(Part.Circle(App.Vector(0, 0, 0), App.Vector(0, 0, 1), 59), False)  # 0
add_polygon(sketch5, [(36, -21), (0, 42), (-36, -21)])  # lines 1-3
sketch5.addConstraint([
    Sketcher.Constraint("Horizontal", 3),
    Sketcher.Constraint("Coincident", 0, 3, -1, 1),
    Sketcher.Constraint("PointOnObject", 1, 2, -2),
    Sketcher.Constraint("Equal", 1, 2),
    Sketcher.Constraint("Angle", 1, Q("120 deg")),
    Sketcher.Constraint("DistanceY", -1, 1, 1, 2, Q("42 mm")),
    Sketcher.Constraint("DistanceY", 2, 2, -1, 1, Q("21 mm")),
    Sketcher.Constraint("Diameter", 0, Q("118.262731 mm")),
])
pocket1 = body.newObject("PartDesign::Pocket", "Pocket")
pocket1.Profile = sketch5
pocket1.Type = "ThroughAll"
pocket1.Midplane = True
doc.recompute()

fillet = body.newObject("PartDesign::Fillet", "Fillet")
fillet.Base = (pocket1, edges_at(pocket1, [
    (4.187, 34.749, 9.1),
    (32.187, -13.749, 9.1),
    (28, -21, 9.1),
    (-28, -21, 9.1),
    (-32.187, -13.749, 9.1),
    (-4.187, 34.749, 9.1),
]))
fillet.Radius = 6

doc.recompute()
